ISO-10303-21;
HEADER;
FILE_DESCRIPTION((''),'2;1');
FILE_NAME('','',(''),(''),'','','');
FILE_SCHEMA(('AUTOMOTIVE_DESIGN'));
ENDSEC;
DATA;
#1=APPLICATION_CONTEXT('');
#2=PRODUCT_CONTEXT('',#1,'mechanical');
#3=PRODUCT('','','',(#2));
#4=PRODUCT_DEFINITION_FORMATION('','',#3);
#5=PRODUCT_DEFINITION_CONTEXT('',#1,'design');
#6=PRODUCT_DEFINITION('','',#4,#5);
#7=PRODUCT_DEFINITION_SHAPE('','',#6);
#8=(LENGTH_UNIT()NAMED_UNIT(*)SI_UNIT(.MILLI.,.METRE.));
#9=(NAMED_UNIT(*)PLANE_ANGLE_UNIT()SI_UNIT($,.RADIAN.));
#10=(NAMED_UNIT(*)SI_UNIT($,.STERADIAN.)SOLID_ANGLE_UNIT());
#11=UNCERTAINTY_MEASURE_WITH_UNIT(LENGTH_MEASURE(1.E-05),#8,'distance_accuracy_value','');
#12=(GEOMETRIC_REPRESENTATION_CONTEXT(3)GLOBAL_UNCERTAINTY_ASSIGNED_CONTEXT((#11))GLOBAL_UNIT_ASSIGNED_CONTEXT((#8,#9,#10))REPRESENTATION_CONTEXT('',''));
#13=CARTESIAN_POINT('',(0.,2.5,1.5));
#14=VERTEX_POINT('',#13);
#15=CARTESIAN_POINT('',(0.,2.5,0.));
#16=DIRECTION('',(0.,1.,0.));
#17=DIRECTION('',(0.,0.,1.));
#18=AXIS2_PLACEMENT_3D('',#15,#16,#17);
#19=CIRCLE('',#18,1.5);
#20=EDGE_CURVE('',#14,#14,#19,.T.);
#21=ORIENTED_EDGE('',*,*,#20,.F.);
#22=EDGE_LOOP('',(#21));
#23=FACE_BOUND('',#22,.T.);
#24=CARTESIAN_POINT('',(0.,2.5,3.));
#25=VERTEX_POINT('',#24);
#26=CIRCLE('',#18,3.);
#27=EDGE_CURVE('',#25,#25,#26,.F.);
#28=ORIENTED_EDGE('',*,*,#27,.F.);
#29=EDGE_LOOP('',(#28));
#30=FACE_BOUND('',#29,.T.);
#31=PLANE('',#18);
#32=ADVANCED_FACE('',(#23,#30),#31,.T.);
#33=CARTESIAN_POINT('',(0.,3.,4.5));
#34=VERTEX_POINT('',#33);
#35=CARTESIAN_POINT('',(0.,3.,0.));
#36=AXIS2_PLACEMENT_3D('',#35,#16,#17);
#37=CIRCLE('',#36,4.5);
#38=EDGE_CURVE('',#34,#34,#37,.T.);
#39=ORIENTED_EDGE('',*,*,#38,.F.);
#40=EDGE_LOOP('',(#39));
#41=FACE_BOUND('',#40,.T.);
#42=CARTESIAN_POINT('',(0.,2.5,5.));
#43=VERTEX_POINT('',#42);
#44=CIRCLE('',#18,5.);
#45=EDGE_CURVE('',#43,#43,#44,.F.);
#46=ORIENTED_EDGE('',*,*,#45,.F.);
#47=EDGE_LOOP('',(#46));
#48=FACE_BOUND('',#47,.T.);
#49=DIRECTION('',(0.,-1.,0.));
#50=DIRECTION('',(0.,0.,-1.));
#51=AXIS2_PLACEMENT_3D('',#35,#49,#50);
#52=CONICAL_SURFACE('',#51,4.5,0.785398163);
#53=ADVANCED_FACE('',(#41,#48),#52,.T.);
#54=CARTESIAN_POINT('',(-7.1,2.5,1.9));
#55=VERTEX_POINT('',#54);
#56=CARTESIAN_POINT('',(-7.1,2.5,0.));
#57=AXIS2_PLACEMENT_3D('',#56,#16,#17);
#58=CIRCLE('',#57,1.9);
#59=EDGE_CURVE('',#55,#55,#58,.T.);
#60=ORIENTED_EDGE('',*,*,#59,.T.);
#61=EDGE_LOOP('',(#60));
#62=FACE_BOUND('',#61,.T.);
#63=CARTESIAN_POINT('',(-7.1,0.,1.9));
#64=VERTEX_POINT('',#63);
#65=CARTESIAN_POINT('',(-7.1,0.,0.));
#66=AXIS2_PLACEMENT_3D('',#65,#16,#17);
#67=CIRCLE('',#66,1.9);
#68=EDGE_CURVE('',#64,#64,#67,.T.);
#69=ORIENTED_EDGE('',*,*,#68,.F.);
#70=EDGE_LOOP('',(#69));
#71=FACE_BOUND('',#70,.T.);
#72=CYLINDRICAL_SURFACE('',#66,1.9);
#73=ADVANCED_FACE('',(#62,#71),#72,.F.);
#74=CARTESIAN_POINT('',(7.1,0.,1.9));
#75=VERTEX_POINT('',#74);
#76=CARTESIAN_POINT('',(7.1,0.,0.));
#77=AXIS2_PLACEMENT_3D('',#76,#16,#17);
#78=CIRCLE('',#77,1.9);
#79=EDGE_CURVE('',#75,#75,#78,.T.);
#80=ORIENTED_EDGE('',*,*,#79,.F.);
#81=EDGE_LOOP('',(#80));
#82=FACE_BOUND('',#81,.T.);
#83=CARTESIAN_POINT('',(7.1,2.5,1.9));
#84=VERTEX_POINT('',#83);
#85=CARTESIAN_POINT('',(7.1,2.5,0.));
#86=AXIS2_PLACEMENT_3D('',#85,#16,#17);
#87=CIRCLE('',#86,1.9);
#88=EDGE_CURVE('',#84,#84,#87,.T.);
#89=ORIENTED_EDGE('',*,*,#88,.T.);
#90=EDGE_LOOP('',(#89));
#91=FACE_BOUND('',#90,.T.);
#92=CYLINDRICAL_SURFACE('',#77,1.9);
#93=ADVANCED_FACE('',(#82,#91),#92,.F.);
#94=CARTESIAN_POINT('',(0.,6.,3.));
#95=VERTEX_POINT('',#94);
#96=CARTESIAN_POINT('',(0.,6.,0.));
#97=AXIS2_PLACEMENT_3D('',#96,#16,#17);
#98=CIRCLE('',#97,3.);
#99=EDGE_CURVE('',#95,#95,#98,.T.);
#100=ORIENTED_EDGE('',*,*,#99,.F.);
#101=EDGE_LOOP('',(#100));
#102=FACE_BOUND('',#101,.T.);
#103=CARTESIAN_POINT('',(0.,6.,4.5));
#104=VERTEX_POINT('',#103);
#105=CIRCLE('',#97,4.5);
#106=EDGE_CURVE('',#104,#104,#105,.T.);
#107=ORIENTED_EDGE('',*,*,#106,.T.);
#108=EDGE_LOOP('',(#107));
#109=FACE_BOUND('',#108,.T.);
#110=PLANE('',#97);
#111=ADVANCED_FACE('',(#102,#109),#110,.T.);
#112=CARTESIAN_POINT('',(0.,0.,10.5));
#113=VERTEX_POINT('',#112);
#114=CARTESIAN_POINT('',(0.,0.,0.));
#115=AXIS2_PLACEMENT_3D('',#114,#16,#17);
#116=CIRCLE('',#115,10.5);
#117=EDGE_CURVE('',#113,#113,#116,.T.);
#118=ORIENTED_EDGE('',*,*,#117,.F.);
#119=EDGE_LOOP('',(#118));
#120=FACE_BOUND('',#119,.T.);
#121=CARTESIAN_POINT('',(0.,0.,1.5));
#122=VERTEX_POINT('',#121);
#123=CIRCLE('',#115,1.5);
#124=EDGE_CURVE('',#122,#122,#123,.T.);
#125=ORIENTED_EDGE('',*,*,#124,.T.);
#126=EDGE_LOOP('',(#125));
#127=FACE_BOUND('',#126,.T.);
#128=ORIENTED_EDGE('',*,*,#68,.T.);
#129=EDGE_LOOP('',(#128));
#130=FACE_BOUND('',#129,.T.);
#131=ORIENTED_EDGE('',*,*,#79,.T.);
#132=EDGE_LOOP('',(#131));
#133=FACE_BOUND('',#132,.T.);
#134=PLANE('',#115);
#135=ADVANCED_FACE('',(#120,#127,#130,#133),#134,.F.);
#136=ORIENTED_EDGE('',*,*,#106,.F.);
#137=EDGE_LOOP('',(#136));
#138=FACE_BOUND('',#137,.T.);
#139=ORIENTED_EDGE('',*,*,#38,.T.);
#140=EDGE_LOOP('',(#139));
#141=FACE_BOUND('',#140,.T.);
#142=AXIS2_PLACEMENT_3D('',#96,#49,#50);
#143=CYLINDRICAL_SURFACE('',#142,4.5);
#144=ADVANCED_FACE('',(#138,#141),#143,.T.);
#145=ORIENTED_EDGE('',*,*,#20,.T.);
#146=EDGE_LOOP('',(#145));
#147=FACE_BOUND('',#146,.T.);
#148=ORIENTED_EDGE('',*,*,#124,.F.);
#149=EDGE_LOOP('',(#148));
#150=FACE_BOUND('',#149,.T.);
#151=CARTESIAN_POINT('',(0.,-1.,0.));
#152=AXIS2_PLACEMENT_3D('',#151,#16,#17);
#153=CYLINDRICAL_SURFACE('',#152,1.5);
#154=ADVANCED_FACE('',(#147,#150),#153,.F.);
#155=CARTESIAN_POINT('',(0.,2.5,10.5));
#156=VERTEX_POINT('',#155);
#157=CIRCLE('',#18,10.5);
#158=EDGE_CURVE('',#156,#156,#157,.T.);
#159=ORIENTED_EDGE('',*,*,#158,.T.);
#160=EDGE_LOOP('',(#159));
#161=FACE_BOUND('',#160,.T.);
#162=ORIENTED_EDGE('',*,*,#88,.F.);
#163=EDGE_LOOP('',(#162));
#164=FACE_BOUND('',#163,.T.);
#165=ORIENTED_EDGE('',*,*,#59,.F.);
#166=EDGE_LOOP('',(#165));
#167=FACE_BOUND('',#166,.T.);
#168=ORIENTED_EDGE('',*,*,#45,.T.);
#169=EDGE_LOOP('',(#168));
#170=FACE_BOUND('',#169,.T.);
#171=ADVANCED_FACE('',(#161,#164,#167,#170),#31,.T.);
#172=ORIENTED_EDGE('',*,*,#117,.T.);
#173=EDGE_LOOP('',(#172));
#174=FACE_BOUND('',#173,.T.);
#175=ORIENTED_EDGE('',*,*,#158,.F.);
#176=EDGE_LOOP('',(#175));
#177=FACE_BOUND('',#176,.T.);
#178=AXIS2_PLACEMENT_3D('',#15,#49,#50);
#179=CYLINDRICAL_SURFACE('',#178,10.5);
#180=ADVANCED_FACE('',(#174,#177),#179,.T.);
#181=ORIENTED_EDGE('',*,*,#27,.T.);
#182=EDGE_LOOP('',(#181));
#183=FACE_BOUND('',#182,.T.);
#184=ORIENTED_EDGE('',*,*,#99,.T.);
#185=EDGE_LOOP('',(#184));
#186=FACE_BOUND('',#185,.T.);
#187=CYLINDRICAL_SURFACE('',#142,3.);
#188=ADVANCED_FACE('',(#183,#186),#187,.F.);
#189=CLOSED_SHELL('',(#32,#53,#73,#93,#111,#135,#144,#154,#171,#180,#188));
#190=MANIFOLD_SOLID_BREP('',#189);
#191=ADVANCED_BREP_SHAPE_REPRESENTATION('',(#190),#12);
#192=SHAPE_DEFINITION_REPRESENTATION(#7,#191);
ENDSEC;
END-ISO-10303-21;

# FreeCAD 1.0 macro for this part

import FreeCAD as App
import Part
import Sketcher
from FreeCAD import Vector


def edges_at(feature, points):
    """Names of the edges that pass closest to the given points."""
    edges = feature.Shape.Edges
    near = lambda p: min(range(len(edges)), key=lambda i: edges[i].distToShape(Part.Vertex(*p))[0])
    return sorted({f"Edge{near(p) + 1}" for p in points})

doc = App.newDocument("Part")
body = doc.addObject("PartDesign::Body", "Body")

# Sketch on XZ plane
sketch1 = body.newObject("Sketcher::SketchObject", "Sketch")
sketch1.AttachmentSupport = (doc.getObject("XZ_Plane"), [""])
sketch1.MapMode = "FlatFace"
sketch1.addGeometry(Part.Circle(Vector(0, 0, 0), Vector(0, 0, 1), 10), False)
sketch1.addConstraint([
    Sketcher.Constraint("Coincident", 0, 3, -1, 1),
    Sketcher.Constraint("Diameter", 0, 21.0),
])
pad1 = body.newObject("PartDesign::Pad", "Pad")
pad1.Profile = sketch1
pad1.Length = 2.5
pad1.Reversed = True

# Sketch on XZ plane
sketch2 = body.newObject("Sketcher::SketchObject", "Sketch001")
sketch2.AttachmentSupport = (doc.getObject("XZ_Plane"), [""])
sketch2.MapMode = "FlatFace"
sketch2.AttachmentOffset = App.Placement(Vector(0, 0, -2.5), App.Rotation())
sketch2.addGeometry([
    Part.Circle(Vector(0, 0, 0), Vector(0, 0, 1), 4.5),
    Part.Circle(Vector(0, 0, 0), Vector(0, 0, 1), 3),
], False)
sketch2.addConstraint([
    Sketcher.Constraint("Coincident", 0, 3, -1, 1),
    Sketcher.Constraint("Coincident", 1, 3, -1, 1),
    Sketcher.Constraint("Diameter", 0, 9.0),
    Sketcher.Constraint("Diameter", 1, 6.0),
])
pad2 = body.newObject("PartDesign::Pad", "Pad001")
pad2.Profile = sketch2
pad2.Length = 3.5
pad2.Reversed = True

# Sketch on XZ plane
sketch3 = body.newObject("Sketcher::SketchObject", "Sketch002")
sketch3.AttachmentSupport = (doc.getObject("XZ_Plane"), [""])
sketch3.MapMode = "FlatFace"
sketch3.AttachmentOffset = App.Placement(Vector(0, 0, -2.5), App.Rotation())
sketch3.addGeometry(Part.Circle(Vector(0, 0, 0), Vector(0, 0, 1), 1.5), False)
sketch3.addConstraint([
    Sketcher.Constraint("Coincident", 0, 3, -1, 1),
    Sketcher.Constraint("Diameter", 0, 3.0),
])
pocket1 = body.newObject("PartDesign::Pocket", "Pocket")
pocket1.Profile = sketch3
pocket1.Length = 3.5
pocket1.Reversed = True

# Sketch on XZ plane
sketch4 = body.newObject("Sketcher::SketchObject", "Sketch003")
sketch4.AttachmentSupport = (doc.getObject("XZ_Plane"), [""])
sketch4.MapMode = "FlatFace"
sketch4.AttachmentOffset = App.Placement(Vector(0, 0, -2.5), App.Rotation())
sketch4.addGeometry([
    Part.Circle(Vector(-7.1, 0, 0), Vector(0, 0, 1), 1.9),
    Part.Circle(Vector(7.1, 0, 0), Vector(0, 0, 1), 1.9),
], False)
sketch4.addConstraint([
    Sketcher.Constraint("Equal", 0, 1),
    Sketcher.Constraint("Symmetric", 0, 3, 1, 3, -1, 1),
    Sketcher.Constraint("PointOnObject", 0, 3, -1),
    Sketcher.Constraint("Diameter", 0, 3.8),
    Sketcher.Constraint("DistanceX", 0, 3, -1, 1, 7.1),
])
pocket2 = body.newObject("PartDesign::Pocket", "Pocket001")
pocket2.Profile = sketch4
pocket2.Type = "ThroughAll"
pocket2.Midplane = True
doc.recompute()

chamfer = body.newObject("PartDesign::Chamfer", "Chamfer")
chamfer.Base = (pocket2, edges_at(pocket2, [(0, 2.5, -4.5)]))
chamfer.Size = 0.5

doc.recompute()
